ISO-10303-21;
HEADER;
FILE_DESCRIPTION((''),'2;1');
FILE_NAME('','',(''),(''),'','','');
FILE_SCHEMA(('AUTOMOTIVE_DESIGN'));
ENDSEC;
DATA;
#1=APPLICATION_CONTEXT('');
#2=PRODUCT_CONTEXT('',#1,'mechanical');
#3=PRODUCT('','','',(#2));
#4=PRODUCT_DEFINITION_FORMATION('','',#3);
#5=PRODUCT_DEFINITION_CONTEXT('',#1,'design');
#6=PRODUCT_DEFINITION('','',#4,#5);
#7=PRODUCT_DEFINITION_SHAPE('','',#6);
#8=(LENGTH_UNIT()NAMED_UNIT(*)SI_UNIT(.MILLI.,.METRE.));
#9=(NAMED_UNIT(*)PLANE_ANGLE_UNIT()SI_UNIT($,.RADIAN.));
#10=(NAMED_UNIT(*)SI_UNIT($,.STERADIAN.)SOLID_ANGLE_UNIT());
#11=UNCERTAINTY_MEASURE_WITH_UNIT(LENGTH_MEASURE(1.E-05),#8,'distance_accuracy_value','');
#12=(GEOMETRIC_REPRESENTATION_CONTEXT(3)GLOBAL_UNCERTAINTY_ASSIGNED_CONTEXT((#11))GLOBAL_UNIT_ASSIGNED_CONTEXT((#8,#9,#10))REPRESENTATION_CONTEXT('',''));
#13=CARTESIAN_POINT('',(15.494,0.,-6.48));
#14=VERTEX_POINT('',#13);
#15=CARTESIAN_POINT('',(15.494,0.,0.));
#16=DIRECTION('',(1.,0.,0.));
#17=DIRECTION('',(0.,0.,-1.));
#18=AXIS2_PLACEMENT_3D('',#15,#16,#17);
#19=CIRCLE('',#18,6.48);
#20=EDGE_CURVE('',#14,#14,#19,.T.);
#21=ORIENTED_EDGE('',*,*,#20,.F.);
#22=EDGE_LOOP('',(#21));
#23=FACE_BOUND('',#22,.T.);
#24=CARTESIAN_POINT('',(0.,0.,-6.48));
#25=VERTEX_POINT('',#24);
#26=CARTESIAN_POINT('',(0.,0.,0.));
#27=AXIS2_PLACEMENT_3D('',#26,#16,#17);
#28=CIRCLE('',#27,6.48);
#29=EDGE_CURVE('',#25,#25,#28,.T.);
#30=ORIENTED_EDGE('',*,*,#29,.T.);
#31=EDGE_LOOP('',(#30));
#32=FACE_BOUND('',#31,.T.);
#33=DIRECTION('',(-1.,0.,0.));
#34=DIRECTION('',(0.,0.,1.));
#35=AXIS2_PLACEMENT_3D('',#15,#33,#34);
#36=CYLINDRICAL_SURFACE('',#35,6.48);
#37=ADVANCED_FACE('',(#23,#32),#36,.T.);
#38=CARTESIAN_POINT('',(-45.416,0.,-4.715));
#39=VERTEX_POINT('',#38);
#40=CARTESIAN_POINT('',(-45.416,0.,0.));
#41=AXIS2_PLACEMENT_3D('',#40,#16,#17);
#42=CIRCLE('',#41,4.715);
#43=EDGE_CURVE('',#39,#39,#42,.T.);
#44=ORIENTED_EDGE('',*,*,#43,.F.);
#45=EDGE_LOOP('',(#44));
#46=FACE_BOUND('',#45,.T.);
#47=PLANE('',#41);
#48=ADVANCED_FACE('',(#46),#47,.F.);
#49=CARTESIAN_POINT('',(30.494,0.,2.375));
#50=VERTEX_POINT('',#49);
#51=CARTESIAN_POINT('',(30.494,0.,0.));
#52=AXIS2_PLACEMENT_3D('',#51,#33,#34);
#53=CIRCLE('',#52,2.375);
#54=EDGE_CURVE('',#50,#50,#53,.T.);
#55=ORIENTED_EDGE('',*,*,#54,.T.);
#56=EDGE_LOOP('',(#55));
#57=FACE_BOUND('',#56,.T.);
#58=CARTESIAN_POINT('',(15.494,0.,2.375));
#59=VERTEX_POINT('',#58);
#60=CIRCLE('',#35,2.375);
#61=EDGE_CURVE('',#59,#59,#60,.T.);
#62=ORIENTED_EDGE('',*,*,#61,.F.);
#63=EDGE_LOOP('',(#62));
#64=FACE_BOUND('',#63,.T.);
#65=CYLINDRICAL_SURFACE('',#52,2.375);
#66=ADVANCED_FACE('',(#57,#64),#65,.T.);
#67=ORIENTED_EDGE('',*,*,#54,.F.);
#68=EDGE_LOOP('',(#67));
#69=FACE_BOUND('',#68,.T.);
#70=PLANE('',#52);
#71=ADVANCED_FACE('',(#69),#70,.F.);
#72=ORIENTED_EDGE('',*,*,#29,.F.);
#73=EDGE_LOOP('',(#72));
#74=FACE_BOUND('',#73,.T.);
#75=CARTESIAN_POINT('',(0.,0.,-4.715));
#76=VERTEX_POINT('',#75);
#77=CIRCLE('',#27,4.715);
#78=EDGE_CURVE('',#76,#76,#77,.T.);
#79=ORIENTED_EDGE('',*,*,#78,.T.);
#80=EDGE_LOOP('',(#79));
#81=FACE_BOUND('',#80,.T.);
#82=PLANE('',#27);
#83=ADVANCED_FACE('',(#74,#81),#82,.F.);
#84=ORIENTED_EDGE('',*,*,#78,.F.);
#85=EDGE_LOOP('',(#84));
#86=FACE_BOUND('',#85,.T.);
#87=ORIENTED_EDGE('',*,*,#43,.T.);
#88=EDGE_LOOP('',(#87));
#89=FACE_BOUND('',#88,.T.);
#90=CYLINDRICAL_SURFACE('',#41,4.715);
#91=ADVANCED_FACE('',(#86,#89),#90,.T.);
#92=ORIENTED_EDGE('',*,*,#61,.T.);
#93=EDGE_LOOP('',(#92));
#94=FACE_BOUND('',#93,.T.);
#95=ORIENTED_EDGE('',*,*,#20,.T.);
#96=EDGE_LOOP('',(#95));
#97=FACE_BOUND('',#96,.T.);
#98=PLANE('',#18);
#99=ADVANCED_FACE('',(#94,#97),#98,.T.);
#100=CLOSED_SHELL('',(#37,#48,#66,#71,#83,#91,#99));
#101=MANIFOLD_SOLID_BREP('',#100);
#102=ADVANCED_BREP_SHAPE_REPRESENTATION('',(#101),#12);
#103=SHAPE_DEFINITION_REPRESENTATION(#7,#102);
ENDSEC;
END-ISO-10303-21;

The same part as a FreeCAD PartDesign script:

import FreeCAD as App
import Part
import Sketcher
Q = App.Units.Quantity

doc = App.newDocument("Part")
body = doc.addObject("PartDesign::Body", "Body")

# Sketch on YZ plane
sketch1 = body.newObject("Sketcher::SketchObject", "Sketch")
sketch1.AttachmentSupport = (doc.getObject("YZ_Plane"), [""])
sketch1.MapMode = "FlatFace"
sketch1.addGeometry(Part.Circle(App.Vector(0, 0, 0), App.Vector(0, 0, 1), 6.48), False)
sketch1.addConstraint(Sketcher.Constraint("Coincident", 0, 3, -1, 1))
sketch1.addConstraint(Sketcher.Constraint("Diameter", 0, Q("12.96 mm")))
pad1 = body.newObject("PartDesign::Pad", "Pad")
pad1.Profile = sketch1
pad1.Length = 15.494

# Sketch on YZ plane
sketch2 = body.newObject("Sketcher::SketchObject", "Sketch001")
sketch2.AttachmentSupport = (doc.getObject("YZ_Plane"), [""])
sketch2.MapMode = "FlatFace"
sketch2.AttachmentOffset = App.Placement(App.Vector(0, 0, 15.494), App.Rotation())
sketch2.addGeometry(Part.Circle(App.Vector(0, 0, 0), App.Vector(0, 0, 1), 4.715), False)
sketch2.addConstraint(Sketcher.Constraint("Coincident", 0, 3, -1, 1))
sketch2.addConstraint(Sketcher.Constraint("Diameter", 0, Q("9.43 mm")))
pad2 = body.newObject("PartDesign::Pad", "Pad001")
pad2.Profile = sketch2
pad2.Length = 60.91
pad2.Reversed = True

# Sketch on YZ plane
sketch3 = body.newObject("Sketcher::SketchObject", "Sketch002")
sketch3.AttachmentSupport = (doc.getObject("YZ_Plane"), [""])
sketch3.MapMode = "FlatFace"
sketch3.AttachmentOffset = App.Placement(App.Vector(0, 0, 15.494), App.Rotation())
sketch3.addGeometry(Part.Circle(App.Vector(0, 0, 0), App.Vector(0, 0, 1), 2.375), False)
sketch3.addConstraint(Sketcher.Constraint("Coincident", 0, 3, -1, 1))
sketch3.addConstraint(Sketcher.Constraint("Diameter", 0, Q("4.75 mm")))
pad3 = body.newObject("PartDesign::Pad", "Pad002")
pad3.Profile = sketch3
pad3.Length = 15

doc.recompute()
